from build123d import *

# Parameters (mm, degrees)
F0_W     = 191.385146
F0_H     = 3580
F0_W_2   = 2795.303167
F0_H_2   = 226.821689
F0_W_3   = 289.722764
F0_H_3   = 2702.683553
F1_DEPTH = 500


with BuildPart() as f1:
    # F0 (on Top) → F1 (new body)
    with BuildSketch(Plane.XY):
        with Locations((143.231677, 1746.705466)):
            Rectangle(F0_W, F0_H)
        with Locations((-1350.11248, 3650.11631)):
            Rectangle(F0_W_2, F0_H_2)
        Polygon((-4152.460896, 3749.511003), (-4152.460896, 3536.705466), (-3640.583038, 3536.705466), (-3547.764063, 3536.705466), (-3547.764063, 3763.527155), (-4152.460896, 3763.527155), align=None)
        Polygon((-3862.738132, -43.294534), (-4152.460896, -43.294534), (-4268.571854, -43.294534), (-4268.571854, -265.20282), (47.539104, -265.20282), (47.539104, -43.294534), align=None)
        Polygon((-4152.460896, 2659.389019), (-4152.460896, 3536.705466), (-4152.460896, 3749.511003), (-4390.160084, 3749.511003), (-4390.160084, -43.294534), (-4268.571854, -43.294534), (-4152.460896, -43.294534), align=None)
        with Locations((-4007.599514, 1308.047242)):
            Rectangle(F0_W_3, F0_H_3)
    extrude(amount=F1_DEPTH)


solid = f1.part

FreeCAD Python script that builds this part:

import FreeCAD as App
import Part
import Sketcher

V = App.Vector


def add_polygon(sketch, points):
    """Adds a closed chain of lines whose ends are joined by coincident constraints."""
    first, n = sketch.GeometryCount, len(points)
    for a, b in zip(points, points[1:] + points[:1]):
        sketch.addGeometry(Part.LineSegment(App.Vector(*a, 0), App.Vector(*b, 0)), False)
    for i in range(n):
        sketch.addConstraint(Sketcher.Constraint("Coincident", first + i, 2, first + (i + 1) % n, 1))

doc = App.newDocument("Part")
params = doc.addObject("Spreadsheet::Sheet", "Params")
for row, (alias, value) in enumerate([
    ("sketch1_height", "3580 mm"),
    ("pad1_length", "500 mm"),
], start=1):
    params.set(f"A{row}", alias)
    params.set(f"B{row}", "=" + value)
    params.setAlias(f"B{row}", alias)

body = doc.addObject("PartDesign::Body", "Body")
body.AllowCompound = True

# Sketch on XY plane
sketch1 = body.newObject("Sketcher::SketchObject", "Sketch")
sketch1.AttachmentSupport = (doc.getObject("XY_Plane"), [""])
sketch1.MapMode = "FlatFace"
add_polygon(sketch1, [(48, 3537), (48, -43), (239, -43), (239, 3537)])  # lines 0-3
add_polygon(sketch1, [(-2748, 3764), (-2748, 3537), (48, 3537), (48, 3764)])  # lines 4-7
add_polygon(sketch1, [(-4152, 2659), (-4152, 3537), (-3548, 3537), (-3548, 3764), (-4152, 3764), (-4152, 3750), (-4390, 3750), (-4390, -43), (-4269, -43), (-4269, -265), (48, -265), (48, -43), (-3863, -43), (-3863, 2659)])  # lines 8-21
sketch1.addConstraint(Sketcher.Constraint("Vertical", 0))
sketch1.addConstraint(Sketcher.Constraint("Horizontal", 1))
sketch1.addConstraint(Sketcher.Constraint("Vertical", 2))
sketch1.addConstraint(Sketcher.Constraint("Horizontal", 3))
sketch1.addConstraint(Sketcher.Constraint("Vertical", 4))
sketch1.addConstraint(Sketcher.Constraint("Horizontal", 5))
sketch1.addConstraint(Sketcher.Constraint("Vertical", 6))
sketch1.addConstraint(Sketcher.Constraint("Horizontal", 7))
sketch1.addConstraint(Sketcher.Constraint("Vertical", 8))
sketch1.addConstraint(Sketcher.Constraint("Horizontal", 9))
sketch1.addConstraint(Sketcher.Constraint("Vertical", 10))
sketch1.addConstraint(Sketcher.Constraint("Horizontal", 11))
sketch1.addConstraint(Sketcher.Constraint("Vertical", 12))
sketch1.addConstraint(Sketcher.Constraint("Horizontal", 13))
sketch1.addConstraint(Sketcher.Constraint("Vertical", 14))
sketch1.addConstraint(Sketcher.Constraint("Horizontal", 15))
sketch1.addConstraint(Sketcher.Constraint("Vertical", 16))
sketch1.addConstraint(Sketcher.Constraint("Horizontal", 17))
sketch1.addConstraint(Sketcher.Constraint("Vertical", 18))
sketch1.addConstraint(Sketcher.Constraint("Horizontal", 19))
sketch1.addConstraint(Sketcher.Constraint("Vertical", 20))
sketch1.addConstraint(Sketcher.Constraint("Horizontal", 21))
sketch1.addConstraint(Sketcher.Constraint("Coincident", 5, 2, 3, 2))
sketch1.addConstraint(Sketcher.Constraint("Coincident", 18, 2, 0, 2))
sketch1.addConstraint(Sketcher.Constraint("Horizontal", 5, 2, 8, 2))
sketch1.addConstraint(Sketcher.Constraint("Horizontal", 7, 2, 10, 2))
sketch1.addConstraint(Sketcher.Constraint("Horizontal", 1, 2, 14, 2))
sketch1.addConstraint(Sketcher.Constraint("Vertical", 8, 2, 11, 2))
sketch1.addConstraint(Sketcher.Constraint("DistanceY", 0, 2, 0, 1, 3580.0))
sketch1.addConstraint(Sketcher.Constraint("DistanceX", 8, 2, 5, 2, 4199.999999))
sketch1.addConstraint(Sketcher.Constraint("DistanceX", 9, 2, 4, 2, 800.0))
sketch1.addConstraint(Sketcher.Constraint("DistanceX", 13, 2, 13, 1, 237.699188))
sketch1.addConstraint(Sketcher.Constraint("DistanceX", 15, 1, 15, 2, 121.58823))
sketch1.addConstraint(Sketcher.Constraint("DistanceY", 4, 2, 4, 1, 226.821689))
sketch1.addConstraint(Sketcher.Constraint("DistanceX", 1, 1, 1, 2, 191.385146))
sketch1.addConstraint(Sketcher.Constraint("DistanceX", 5, 1, 5, 2, 2795.303167))
sketch1.addConstraint(Sketcher.Constraint("DistanceX", 19, 2, 19, 1, 3910.277236))
sketch1.addConstraint(Sketcher.Constraint("DistanceY", 8, 1, 8, 2, 877.316447))
sketch1.addConstraint(Sketcher.Constraint("DistanceY", 12, 2, 12, 1, 14.016152))
sketch1.addConstraint(Sketcher.Constraint("DistanceY", 16, 2, 16, 1, 221.908286))
sketch1.addConstraint(Sketcher.Constraint("DistanceX", -1, 1, 1, 2, 238.92425))
sketch1.addConstraint(Sketcher.Constraint("DistanceY", 16, 2, -1, 1, 265.20282))
sketch1.setExpression("Constraints[50]", "Params.sketch1_height")
pad1 = body.newObject("PartDesign::Pad", "Pad")
pad1.Profile = sketch1
pad1.setExpression("Length", "Params.pad1_length")

doc.recompute()
